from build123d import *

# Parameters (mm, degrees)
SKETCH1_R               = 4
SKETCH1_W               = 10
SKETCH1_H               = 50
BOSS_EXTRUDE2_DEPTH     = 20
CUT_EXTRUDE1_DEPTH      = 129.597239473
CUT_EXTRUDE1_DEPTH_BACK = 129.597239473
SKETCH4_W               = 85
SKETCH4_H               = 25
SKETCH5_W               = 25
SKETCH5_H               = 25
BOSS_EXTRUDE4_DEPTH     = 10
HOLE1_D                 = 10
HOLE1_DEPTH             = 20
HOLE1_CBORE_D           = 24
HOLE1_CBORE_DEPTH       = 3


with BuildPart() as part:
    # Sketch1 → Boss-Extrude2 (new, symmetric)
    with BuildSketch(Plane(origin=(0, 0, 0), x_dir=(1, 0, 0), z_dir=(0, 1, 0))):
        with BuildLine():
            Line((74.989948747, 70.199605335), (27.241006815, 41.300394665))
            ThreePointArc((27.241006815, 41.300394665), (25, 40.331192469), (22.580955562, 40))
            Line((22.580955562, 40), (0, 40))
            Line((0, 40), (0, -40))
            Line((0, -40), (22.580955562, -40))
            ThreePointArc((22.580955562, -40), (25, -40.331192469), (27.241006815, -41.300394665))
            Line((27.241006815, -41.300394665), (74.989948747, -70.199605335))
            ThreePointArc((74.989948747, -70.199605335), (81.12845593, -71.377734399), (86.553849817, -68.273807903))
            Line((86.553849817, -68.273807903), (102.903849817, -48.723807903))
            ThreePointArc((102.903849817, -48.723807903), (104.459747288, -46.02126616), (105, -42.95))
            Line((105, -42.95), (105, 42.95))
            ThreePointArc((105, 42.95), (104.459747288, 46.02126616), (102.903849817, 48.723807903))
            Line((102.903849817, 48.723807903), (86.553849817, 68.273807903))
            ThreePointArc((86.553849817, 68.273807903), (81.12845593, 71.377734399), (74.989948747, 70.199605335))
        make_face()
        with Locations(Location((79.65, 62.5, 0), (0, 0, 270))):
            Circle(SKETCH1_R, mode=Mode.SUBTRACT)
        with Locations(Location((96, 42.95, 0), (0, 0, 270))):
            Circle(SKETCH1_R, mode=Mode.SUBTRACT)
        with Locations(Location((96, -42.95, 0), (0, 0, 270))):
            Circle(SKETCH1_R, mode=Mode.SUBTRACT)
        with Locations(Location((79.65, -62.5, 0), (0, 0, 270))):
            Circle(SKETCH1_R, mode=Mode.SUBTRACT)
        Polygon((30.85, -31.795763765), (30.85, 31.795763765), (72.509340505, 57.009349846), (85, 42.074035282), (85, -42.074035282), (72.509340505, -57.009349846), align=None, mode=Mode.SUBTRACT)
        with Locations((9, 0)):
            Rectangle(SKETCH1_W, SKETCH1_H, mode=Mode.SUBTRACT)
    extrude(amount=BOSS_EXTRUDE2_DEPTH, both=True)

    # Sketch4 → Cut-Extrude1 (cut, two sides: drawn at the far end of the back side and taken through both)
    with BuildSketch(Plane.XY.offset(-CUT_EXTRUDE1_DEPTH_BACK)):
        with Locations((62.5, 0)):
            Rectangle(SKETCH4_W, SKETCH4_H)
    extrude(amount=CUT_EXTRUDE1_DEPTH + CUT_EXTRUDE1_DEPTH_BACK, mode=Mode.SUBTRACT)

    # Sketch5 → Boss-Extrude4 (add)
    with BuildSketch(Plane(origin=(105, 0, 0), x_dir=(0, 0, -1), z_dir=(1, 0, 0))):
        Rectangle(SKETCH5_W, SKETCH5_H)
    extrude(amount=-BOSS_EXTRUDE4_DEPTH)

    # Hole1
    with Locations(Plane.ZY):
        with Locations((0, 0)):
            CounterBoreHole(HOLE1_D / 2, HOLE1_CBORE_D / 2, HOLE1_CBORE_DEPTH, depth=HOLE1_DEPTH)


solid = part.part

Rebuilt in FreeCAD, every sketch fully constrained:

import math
import FreeCAD as App
import Part
import Sketcher

doc = App.newDocument("Part")
body = doc.addObject("PartDesign::Body", "Body")

sketch1 = doc.addObject("Sketcher::SketchObject", "Sketch")
body.addObject(sketch1)
sketch1.AttachmentSupport = (doc.XZ_Plane, [""])
sketch1.MapMode = "FlatFace"
sketch1.addGeometry(Part.LineSegment(App.Vector(74.989949, -70.199605, 0), App.Vector(27.241007, -41.300395, 0)), False)
sketch1.addGeometry(Part.ArcOfCircle(Part.Circle(App.Vector(22.580956, -49, 0), App.Vector(0, 0, 1), 9), math.radians(58.816312), math.radians(90)), False)
sketch1.addGeometry(Part.LineSegment(App.Vector(22.580956, -40, 0), App.Vector(0, -40, 0)), False)
sketch1.addGeometry(Part.LineSegment(App.Vector(0, -40, 0), App.Vector(0, 40, 0)), False)
sketch1.addGeometry(Part.LineSegment(App.Vector(0, 40, 0), App.Vector(22.580956, 40, 0)), False)
sketch1.addGeometry(Part.ArcOfCircle(Part.Circle(App.Vector(22.580956, 49, 0), App.Vector(0, 0, 1), 9), math.radians(-90), math.radians(-58.816312)), False)
sketch1.addGeometry(Part.LineSegment(App.Vector(27.241007, 41.300395, 0), App.Vector(74.989949, 70.199605, 0)), False)
sketch1.addGeometry(Part.ArcOfCircle(Part.Circle(App.Vector(79.65, 62.5, 0), App.Vector(0, 0, 1), 9), math.radians(39.906317), math.radians(121.183688)), False)
sketch1.addGeometry(Part.LineSegment(App.Vector(86.55385, 68.273808, 0), App.Vector(102.90385, 48.723808, 0)), False)
sketch1.addGeometry(Part.ArcOfCircle(Part.Circle(App.Vector(96, 42.95, 0), App.Vector(0, 0, 1), 9), math.radians(0), math.radians(39.906317)), False)
sketch1.addGeometry(Part.LineSegment(App.Vector(105, 42.95, 0), App.Vector(105, -42.95, 0)), False)
sketch1.addGeometry(Part.ArcOfCircle(Part.Circle(App.Vector(96, -42.95, 0), App.Vector(0, 0, 1), 9), math.radians(-39.906317), math.radians(0)), False)
sketch1.addGeometry(Part.LineSegment(App.Vector(102.90385, -48.723808, 0), App.Vector(86.55385, -68.273808, 0)), False)
sketch1.addGeometry(Part.ArcOfCircle(Part.Circle(App.Vector(79.65, -62.5, 0), App.Vector(0, 0, 1), 9), math.radians(-121.183688), math.radians(-39.906317)), False)
sketch1.addGeometry(Part.Circle(App.Vector(79.65, 62.5, 0), App.Vector(0, 0, 1), 4), False)
sketch1.addGeometry(Part.Circle(App.Vector(96, 42.95, 0), App.Vector(0, 0, 1), 4), False)
sketch1.addGeometry(Part.LineSegment(App.Vector(14, 25, 0), App.Vector(4, 25, 0)), False)
sketch1.addGeometry(Part.LineSegment(App.Vector(4, 25, 0), App.Vector(4, -25, 0)), False)
sketch1.addGeometry(Part.LineSegment(App.Vector(4, -25, 0), App.Vector(14, -25, 0)), False)
sketch1.addGeometry(Part.LineSegment(App.Vector(14, -25, 0), App.Vector(14, 25, 0)), False)
sketch1.addGeometry(Part.LineSegment(App.Vector(72.509341, 57.00935, 0), App.Vector(30.85, 31.795764, 0)), False)
sketch1.addGeometry(Part.LineSegment(App.Vector(30.85, 31.795764, 0), App.Vector(30.85, -31.795764, 0)), False)
sketch1.addGeometry(Part.LineSegment(App.Vector(30.85, -31.795764, 0), App.Vector(72.509341, -57.00935, 0)), False)
sketch1.addGeometry(Part.LineSegment(App.Vector(72.509341, -57.00935, 0), App.Vector(85, -42.074035, 0)), False)
sketch1.addGeometry(Part.LineSegment(App.Vector(85, -42.074035, 0), App.Vector(85, 42.074035, 0)), False)
sketch1.addGeometry(Part.LineSegment(App.Vector(85, 42.074035, 0), App.Vector(72.509341, 57.00935, 0)), False)
sketch1.addGeometry(Part.Circle(App.Vector(96, -42.95, 0), App.Vector(0, 0, 1), 4), False)
sketch1.addGeometry(Part.Circle(App.Vector(79.65, -62.5, 0), App.Vector(0, 0, 1), 4), False)
sketch1.addConstraint(Sketcher.Constraint("Tangent", 0, 2, 1, 1))
sketch1.addConstraint(Sketcher.Constraint("Tangent", 1, 2, 2, 1))
sketch1.addConstraint(Sketcher.Constraint("Coincident", 2, 2, 3, 1))
sketch1.addConstraint(Sketcher.Constraint("Coincident", 3, 2, 4, 1))
sketch1.addConstraint(Sketcher.Constraint("Tangent", 4, 2, 5, 1))
sketch1.addConstraint(Sketcher.Constraint("Tangent", 5, 2, 6, 1))
sketch1.addConstraint(Sketcher.Constraint("Tangent", 6, 2, 7, 2))
sketch1.addConstraint(Sketcher.Constraint("Tangent", 7, 1, 8, 1))
sketch1.addConstraint(Sketcher.Constraint("Tangent", 8, 2, 9, 2))
sketch1.addConstraint(Sketcher.Constraint("Tangent", 9, 1, 10, 1))
sketch1.addConstraint(Sketcher.Constraint("Tangent", 10, 2, 11, 2))
sketch1.addConstraint(Sketcher.Constraint("Tangent", 11, 1, 12, 1))
sketch1.addConstraint(Sketcher.Constraint("Tangent", 12, 2, 13, 2))
sketch1.addConstraint(Sketcher.Constraint("Tangent", 13, 1, 0, 1))
sketch1.addConstraint(Sketcher.Constraint("Coincident", 16, 2, 17, 1))
sketch1.addConstraint(Sketcher.Constraint("Coincident", 17, 2, 18, 1))
sketch1.addConstraint(Sketcher.Constraint("Coincident", 18, 2, 19, 1))
sketch1.addConstraint(Sketcher.Constraint("Coincident", 19, 2, 16, 1))
sketch1.addConstraint(Sketcher.Constraint("Coincident", 20, 2, 21, 1))
sketch1.addConstraint(Sketcher.Constraint("Coincident", 21, 2, 22, 1))
sketch1.addConstraint(Sketcher.Constraint("Coincident", 22, 2, 23, 1))
sketch1.addConstraint(Sketcher.Constraint("Coincident", 23, 2, 24, 1))
sketch1.addConstraint(Sketcher.Constraint("Coincident", 24, 2, 25, 1))
sketch1.addConstraint(Sketcher.Constraint("Coincident", 25, 2, 20, 1))
sketch1.addConstraint(Sketcher.Constraint("Horizontal", 2))
sketch1.addConstraint(Sketcher.Constraint("Vertical", 3))
sketch1.addConstraint(Sketcher.Constraint("Horizontal", 4))
sketch1.addConstraint(Sketcher.Constraint("Vertical", 10))
sketch1.addConstraint(Sketcher.Constraint("Horizontal", 16))
sketch1.addConstraint(Sketcher.Constraint("Vertical", 17))
sketch1.addConstraint(Sketcher.Constraint("Horizontal", 18))
sketch1.addConstraint(Sketcher.Constraint("Vertical", 19))
sketch1.addConstraint(Sketcher.Constraint("Vertical", 21))
sketch1.addConstraint(Sketcher.Constraint("Vertical", 24))
sketch1.addConstraint(Sketcher.Constraint("Coincident", 14, 3, 7, 3))
sketch1.addConstraint(Sketcher.Constraint("Coincident", 15, 3, 9, 3))
sketch1.addConstraint(Sketcher.Constraint("Coincident", 26, 3, 11, 3))
sketch1.addConstraint(Sketcher.Constraint("Coincident", 27, 3, 13, 3))
sketch1.addConstraint(Sketcher.Constraint("Equal", 1, 5))
sketch1.addConstraint(Sketcher.Constraint("Equal", 5, 7))
sketch1.addConstraint(Sketcher.Constraint("Equal", 7, 9))
sketch1.addConstraint(Sketcher.Constraint("Equal", 9, 11))
sketch1.addConstraint(Sketcher.Constraint("Equal", 11, 13))
sketch1.addConstraint(Sketcher.Constraint("Equal", 14, 15))
sketch1.addConstraint(Sketcher.Constraint("Equal", 15, 26))
sketch1.addConstraint(Sketcher.Constraint("Equal", 26, 27))
sketch1.addConstraint(Sketcher.Constraint("Symmetric", 2, 2, 3, 2, -1, 1))
sketch1.addConstraint(Sketcher.Constraint("Symmetric", 7, 3, 13, 3, -1))
sketch1.addConstraint(Sketcher.Constraint("Symmetric", 22, 2, 25, 2, -1))
sketch1.addConstraint(Sketcher.Constraint("Parallel", 6, 20))
sketch1.addConstraint(Sketcher.Constraint("Parallel", 0, 22))
sketch1.addConstraint(Sketcher.Constraint("Parallel", 12, 23))
sketch1.addConstraint(Sketcher.Constraint("Parallel", 8, 25))
sketch1.addConstraint(Sketcher.Constraint("Vertical", 1, 3, 5, 3))
sketch1.addConstraint(Sketcher.Constraint("Vertical", 8, 2, 11, 1))
sketch1.addConstraint(Sketcher.Constraint("Diameter", 14, 8.0))
sketch1.addConstraint(Sketcher.Constraint("Radius", 1, 9.0))
sketch1.addConstraint(Sketcher.Constraint("DistanceX", 16, 2, 16, 1, 10.0))
sketch1.addConstraint(Sketcher.Constraint("DistanceY", 3, 1, 3, 2, 80.0))
sketch1.addConstraint(Sketcher.Constraint("DistanceY", 17, 2, 17, 1, 50.0))
sketch1.addConstraint(Sketcher.Constraint("DistanceY", 10, 2, 10, 1, 85.9))
sketch1.addConstraint(Sketcher.Constraint("DistanceX", -1, 1, 9, 3, 96.0))
sketch1.addConstraint(Sketcher.Constraint("DistanceX", -1, 1, 16, 2, 4.0))
sketch1.addConstraint(Sketcher.Constraint("DistanceY", -1, 1, 16, 2, 25.0))
sketch1.addConstraint(Sketcher.Constraint("DistanceX", -1, 1, 23, 2, 85.0))
sketch1.addConstraint(Sketcher.Constraint("DistanceY", 13, 3, 7, 3, 125.0))
sketch1.addConstraint(Sketcher.Constraint("DistanceX", -1, 1, 7, 3, 79.65))
sketch1.addConstraint(Sketcher.Constraint("DistanceX", -1, 1, 20, 2, 30.85))
sketch1.addConstraint(Sketcher.Constraint("DistanceY", 24, 1, 24, 2, 84.148071))
sketch1.addConstraint(Sketcher.Constraint("DistanceX", 6, 2, 7, 1, 11.563901))
sketch1.addConstraint(Sketcher.Constraint("Distance", 20, 48.695232))
pad1 = doc.addObject("PartDesign::Pad", "Pad")
body.addObject(pad1)
pad1.Profile = sketch1
pad1.Length = 40
pad1.Midplane = True

sketch2 = doc.addObject("Sketcher::SketchObject", "Sketch001")
body.addObject(sketch2)
sketch2.AttachmentSupport = (doc.XY_Plane, [""])
sketch2.MapMode = "FlatFace"
sketch2.addGeometry(Part.LineSegment(App.Vector(20, 12.5, 0), App.Vector(20, -12.5, 0)), False)
sketch2.addGeometry(Part.LineSegment(App.Vector(20, -12.5, 0), App.Vector(105, -12.5, 0)), False)
sketch2.addGeometry(Part.LineSegment(App.Vector(105, -12.5, 0), App.Vector(105, 12.5, 0)), False)
sketch2.addGeometry(Part.LineSegment(App.Vector(105, 12.5, 0), App.Vector(20, 12.5, 0)), False)
sketch2.addConstraint(Sketcher.Constraint("Coincident", 0, 2, 1, 1))
sketch2.addConstraint(Sketcher.Constraint("Coincident", 1, 2, 2, 1))
sketch2.addConstraint(Sketcher.Constraint("Coincident", 2, 2, 3, 1))
sketch2.addConstraint(Sketcher.Constraint("Coincident", 3, 2, 0, 1))
sketch2.addConstraint(Sketcher.Constraint("Vertical", 0))
sketch2.addConstraint(Sketcher.Constraint("Horizontal", 1))
sketch2.addConstraint(Sketcher.Constraint("Vertical", 2))
sketch2.addConstraint(Sketcher.Constraint("Horizontal", 3))
sketch2.addConstraint(Sketcher.Constraint("DistanceX", 1, 1, 1, 2, 85.0))
sketch2.addConstraint(Sketcher.Constraint("DistanceY", 0, 2, 0, 1, 25.0))
sketch2.addConstraint(Sketcher.Constraint("DistanceX", -1, 1, 0, 2, 20.0))
sketch2.addConstraint(Sketcher.Constraint("DistanceY", 0, 2, -1, 1, 12.5))
pocket1 = doc.addObject("PartDesign::Pocket", "Pocket")
body.addObject(pocket1)
pocket1.Profile = sketch2
pocket1.Type = "ThroughAll"
pocket1.Midplane = True

sketch3 = doc.addObject("Sketcher::SketchObject", "Sketch002")
body.addObject(sketch3)
sketch3.AttachmentSupport = (doc.YZ_Plane, [""])
sketch3.MapMode = "FlatFace"
sketch3.AttachmentOffset = App.Placement(App.Vector(0, 0, 105), App.Rotation())
sketch3.addGeometry(Part.LineSegment(App.Vector(12.5, 12.5, 0), App.Vector(-12.5, 12.5, 0)), False)
sketch3.addGeometry(Part.LineSegment(App.Vector(-12.5, 12.5, 0), App.Vector(-12.5, -12.5, 0)), False)
sketch3.addGeometry(Part.LineSegment(App.Vector(-12.5, -12.5, 0), App.Vector(12.5, -12.5, 0)), False)
sketch3.addGeometry(Part.LineSegment(App.Vector(12.5, -12.5, 0), App.Vector(12.5, 12.5, 0)), False)
sketch3.addConstraint(Sketcher.Constraint("Coincident", 0, 2, 1, 1))
sketch3.addConstraint(Sketcher.Constraint("Coincident", 1, 2, 2, 1))
sketch3.addConstraint(Sketcher.Constraint("Coincident", 2, 2, 3, 1))
sketch3.addConstraint(Sketcher.Constraint("Coincident", 3, 2, 0, 1))
sketch3.addConstraint(Sketcher.Constraint("Horizontal", 0))
sketch3.addConstraint(Sketcher.Constraint("Vertical", 1))
sketch3.addConstraint(Sketcher.Constraint("Horizontal", 2))
sketch3.addConstraint(Sketcher.Constraint("Vertical", 3))
sketch3.addConstraint(Sketcher.Constraint("Symmetric", 0, 2, 2, 2, -1, 1))
sketch3.addConstraint(Sketcher.Constraint("Equal", 2, 1))
sketch3.addConstraint(Sketcher.Constraint("DistanceX", 0, 2, 0, 1, 25.0))
pad2 = doc.addObject("PartDesign::Pad", "Pad001")
body.addObject(pad2)
pad2.Profile = sketch3
pad2.Length = 10
pad2.Reversed = True

sketch4 = doc.addObject("Sketcher::SketchObject", "Sketch003")
body.addObject(sketch4)
sketch4.AttachmentSupport = (doc.YZ_Plane, [""])
sketch4.MapMode = "FlatFace"
sketch4.addGeometry(Part.Circle(App.Vector(0, 0, 0), App.Vector(0, 0, 1), 5), False)
sketch4.addConstraint(Sketcher.Constraint("Coincident", 0, 3, -1, 1))
sketch4.addConstraint(Sketcher.Constraint("Diameter", 0, 10.0))
doc.recompute()
hole = doc.addObject("PartDesign::Hole", "Hole")
body.addObject(hole)
hole.Profile = sketch4
hole.ThreadType = "None"
hole.Diameter = 10
hole.DepthType = "Dimension"
hole.Depth = 20
hole.DrillPoint = "Flat"
hole.HoleCutType = "Counterbore"
hole.HoleCutDiameter = 24
hole.HoleCutDepth = 3
hole.Reversed = True

doc.recompute()
